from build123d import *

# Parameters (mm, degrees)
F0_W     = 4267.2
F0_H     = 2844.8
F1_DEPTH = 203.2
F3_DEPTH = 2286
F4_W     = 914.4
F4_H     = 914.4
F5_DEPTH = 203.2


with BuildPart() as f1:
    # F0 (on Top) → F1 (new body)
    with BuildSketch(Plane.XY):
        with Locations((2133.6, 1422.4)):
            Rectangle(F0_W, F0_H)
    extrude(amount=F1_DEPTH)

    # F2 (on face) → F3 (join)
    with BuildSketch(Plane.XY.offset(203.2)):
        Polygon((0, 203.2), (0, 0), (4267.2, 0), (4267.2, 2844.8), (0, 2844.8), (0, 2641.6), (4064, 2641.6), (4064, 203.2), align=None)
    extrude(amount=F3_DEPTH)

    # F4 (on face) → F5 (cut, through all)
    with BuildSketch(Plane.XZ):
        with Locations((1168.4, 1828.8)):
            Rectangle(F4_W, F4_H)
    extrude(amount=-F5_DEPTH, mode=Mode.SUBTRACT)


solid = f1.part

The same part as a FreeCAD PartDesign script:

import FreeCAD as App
import Part
import Sketcher
Q = App.Units.Quantity

doc = App.newDocument("Part")
params = doc.addObject("Spreadsheet::Sheet", "Params")
for row, (alias, value) in enumerate([
    ("sketch1_width", "168 in"),
    ("sketch1_height", "112 in"),
    ("pad1_length", "8 in"),
    ("sketch2_width", "168 in"),
    ("sketch2_width2", "160 in"),
    ("sketch2_height", "8 in"),
    ("sketch2_height2", "112 in"),
    ("pad2_length", "90 in"),
    ("sketch3_width", "36 in"),
    ("pocket1_length", "8 in"),
], start=1):
    params.set(f"A{row}", alias)
    params.set(f"B{row}", "=" + value)
    params.setAlias(f"B{row}", alias)

body = doc.addObject("PartDesign::Body", "Body")

# Sketch on XY plane
sketch1 = doc.addObject("Sketcher::SketchObject", "Sketch")
body.addObject(sketch1)
sketch1.AttachmentSupport = (doc.XY_Plane, [""])
sketch1.MapMode = "FlatFace"
sketch1.addGeometry([
    Part.LineSegment(App.Vector(0, 2845, 0), App.Vector(0, 0, 0)),
    Part.LineSegment(App.Vector(0, 0, 0), App.Vector(4267, 0, 0)),
    Part.LineSegment(App.Vector(4267, 0, 0), App.Vector(4267, 2845, 0)),
    Part.LineSegment(App.Vector(4267, 2845, 0), App.Vector(0, 2845, 0)),
], False)
sketch1.addConstraint([
    Sketcher.Constraint("Coincident", 0, 2, 1, 1),
    Sketcher.Constraint("Coincident", 1, 2, 2, 1),
    Sketcher.Constraint("Coincident", 2, 2, 3, 1),
    Sketcher.Constraint("Coincident", 3, 2, 0, 1),
    Sketcher.Constraint("Vertical", 0),
    Sketcher.Constraint("Horizontal", 1),
    Sketcher.Constraint("Vertical", 2),
    Sketcher.Constraint("Horizontal", 3),
    Sketcher.Constraint("Coincident", 0, 2, -1, 1),
    Sketcher.Constraint("DistanceX", 1, 1, 1, 2, Q("168 in")),
    Sketcher.Constraint("DistanceY", 0, 2, 0, 1, Q("112 in")),
])
sketch1.setExpression("Constraints[9]", "Params.sketch1_width")
sketch1.setExpression("Constraints[10]", "Params.sketch1_height")
pad1 = doc.addObject("PartDesign::Pad", "Pad")
body.addObject(pad1)
pad1.Profile = sketch1
pad1.setExpression("Length", "Params.pad1_length")

# Sketch on XY plane
sketch2 = doc.addObject("Sketcher::SketchObject", "Sketch001")
body.addObject(sketch2)
sketch2.AttachmentSupport = (doc.XY_Plane, [""])
sketch2.MapMode = "FlatFace"
sketch2.AttachmentOffset = App.Placement(App.Vector(0, 0, 8 * 25.4), App.Rotation())
sketch2.addGeometry([
    Part.LineSegment(App.Vector(0, 203, 0), App.Vector(0, 0, 0)),  # 0
    Part.LineSegment(App.Vector(0, 0, 0), App.Vector(4267, 0, 0)),  # 1
    Part.LineSegment(App.Vector(4267, 0, 0), App.Vector(4267, 2845, 0)),  # 2
    Part.LineSegment(App.Vector(4267, 2845, 0), App.Vector(0, 2845, 0)),  # 3
    Part.LineSegment(App.Vector(0, 2845, 0), App.Vector(0, 2642, 0)),  # 4
    Part.LineSegment(App.Vector(0, 2642, 0), App.Vector(4064, 2642, 0)),  # 5
    Part.LineSegment(App.Vector(4064, 2642, 0), App.Vector(4064, 203, 0)),  # 6
    Part.LineSegment(App.Vector(4064, 203, 0), App.Vector(0, 203, 0)),  # 7
], False)
sketch2.addConstraint([
    Sketcher.Constraint("Coincident", 0, 2, 1, 1),
    Sketcher.Constraint("Coincident", 1, 2, 2, 1),
    Sketcher.Constraint("Coincident", 2, 2, 3, 1),
    Sketcher.Constraint("Coincident", 3, 2, 4, 1),
    Sketcher.Constraint("Coincident", 4, 2, 5, 1),
    Sketcher.Constraint("Coincident", 5, 2, 6, 1),
    Sketcher.Constraint("Coincident", 6, 2, 7, 1),
    Sketcher.Constraint("Coincident", 7, 2, 0, 1),
    Sketcher.Constraint("Vertical", 0),
    Sketcher.Constraint("Horizontal", 1),
    Sketcher.Constraint("Vertical", 2),
    Sketcher.Constraint("Horizontal", 3),
    Sketcher.Constraint("Vertical", 4),
    Sketcher.Constraint("Horizontal", 5),
    Sketcher.Constraint("Vertical", 6),
    Sketcher.Constraint("Horizontal", 7),
    Sketcher.Constraint("Coincident", 0, 2, -1, 1),
    Sketcher.Constraint("PointOnObject", 3, 2, -2),
    Sketcher.Constraint("Equal", 0, 4),
    Sketcher.Constraint("DistanceX", 1, 1, 1, 2, Q("168 in")),
    Sketcher.Constraint("DistanceX", 5, 1, 5, 2, Q("160 in")),
    Sketcher.Constraint("DistanceY", 0, 2, 0, 1, Q("8 in")),
    Sketcher.Constraint("DistanceY", 2, 1, 2, 2, Q("112 in")),
])
sketch2.setExpression("Constraints[19]", "Params.sketch2_width")
sketch2.setExpression("Constraints[20]", "Params.sketch2_width2")
sketch2.setExpression("Constraints[21]", "Params.sketch2_height")
sketch2.setExpression("Constraints[22]", "Params.sketch2_height2")
pad2 = doc.addObject("PartDesign::Pad", "Pad001")
body.addObject(pad2)
pad2.Profile = sketch2
pad2.setExpression("Length", "Params.pad2_length")

# Sketch on XZ plane
sketch3 = doc.addObject("Sketcher::SketchObject", "Sketch002")
body.addObject(sketch3)
sketch3.AttachmentSupport = (doc.XZ_Plane, [""])
sketch3.MapMode = "FlatFace"
sketch3.addGeometry([
    Part.LineSegment(App.Vector(711, 2286, 0), App.Vector(711, 1372, 0)),
    Part.LineSegment(App.Vector(711, 1372, 0), App.Vector(1626, 1372, 0)),
    Part.LineSegment(App.Vector(1626, 1372, 0), App.Vector(1626, 2286, 0)),
    Part.LineSegment(App.Vector(1626, 2286, 0), App.Vector(711, 2286, 0)),
], False)
sketch3.addConstraint([
    Sketcher.Constraint("Coincident", 0, 2, 1, 1),
    Sketcher.Constraint("Coincident", 1, 2, 2, 1),
    Sketcher.Constraint("Coincident", 2, 2, 3, 1),
    Sketcher.Constraint("Coincident", 3, 2, 0, 1),
    Sketcher.Constraint("Vertical", 0),
    Sketcher.Constraint("Horizontal", 1),
    Sketcher.Constraint("Vertical", 2),
    Sketcher.Constraint("Horizontal", 3),
    Sketcher.Constraint("Equal", 3, 0),
    Sketcher.Constraint("DistanceX", 1, 1, 1, 2, Q("36 in")),
    Sketcher.Constraint("DistanceX", -1, 1, 0, 2, Q("28 in")),
    Sketcher.Constraint("DistanceY", -1, 1, 0, 2, Q("54 in")),
])
sketch3.setExpression("Constraints[9]", "Params.sketch3_width")
pocket1 = doc.addObject("PartDesign::Pocket", "Pocket")
body.addObject(pocket1)
pocket1.Profile = sketch3
pocket1.setExpression("Length", "Params.pocket1_length")

doc.recompute()
